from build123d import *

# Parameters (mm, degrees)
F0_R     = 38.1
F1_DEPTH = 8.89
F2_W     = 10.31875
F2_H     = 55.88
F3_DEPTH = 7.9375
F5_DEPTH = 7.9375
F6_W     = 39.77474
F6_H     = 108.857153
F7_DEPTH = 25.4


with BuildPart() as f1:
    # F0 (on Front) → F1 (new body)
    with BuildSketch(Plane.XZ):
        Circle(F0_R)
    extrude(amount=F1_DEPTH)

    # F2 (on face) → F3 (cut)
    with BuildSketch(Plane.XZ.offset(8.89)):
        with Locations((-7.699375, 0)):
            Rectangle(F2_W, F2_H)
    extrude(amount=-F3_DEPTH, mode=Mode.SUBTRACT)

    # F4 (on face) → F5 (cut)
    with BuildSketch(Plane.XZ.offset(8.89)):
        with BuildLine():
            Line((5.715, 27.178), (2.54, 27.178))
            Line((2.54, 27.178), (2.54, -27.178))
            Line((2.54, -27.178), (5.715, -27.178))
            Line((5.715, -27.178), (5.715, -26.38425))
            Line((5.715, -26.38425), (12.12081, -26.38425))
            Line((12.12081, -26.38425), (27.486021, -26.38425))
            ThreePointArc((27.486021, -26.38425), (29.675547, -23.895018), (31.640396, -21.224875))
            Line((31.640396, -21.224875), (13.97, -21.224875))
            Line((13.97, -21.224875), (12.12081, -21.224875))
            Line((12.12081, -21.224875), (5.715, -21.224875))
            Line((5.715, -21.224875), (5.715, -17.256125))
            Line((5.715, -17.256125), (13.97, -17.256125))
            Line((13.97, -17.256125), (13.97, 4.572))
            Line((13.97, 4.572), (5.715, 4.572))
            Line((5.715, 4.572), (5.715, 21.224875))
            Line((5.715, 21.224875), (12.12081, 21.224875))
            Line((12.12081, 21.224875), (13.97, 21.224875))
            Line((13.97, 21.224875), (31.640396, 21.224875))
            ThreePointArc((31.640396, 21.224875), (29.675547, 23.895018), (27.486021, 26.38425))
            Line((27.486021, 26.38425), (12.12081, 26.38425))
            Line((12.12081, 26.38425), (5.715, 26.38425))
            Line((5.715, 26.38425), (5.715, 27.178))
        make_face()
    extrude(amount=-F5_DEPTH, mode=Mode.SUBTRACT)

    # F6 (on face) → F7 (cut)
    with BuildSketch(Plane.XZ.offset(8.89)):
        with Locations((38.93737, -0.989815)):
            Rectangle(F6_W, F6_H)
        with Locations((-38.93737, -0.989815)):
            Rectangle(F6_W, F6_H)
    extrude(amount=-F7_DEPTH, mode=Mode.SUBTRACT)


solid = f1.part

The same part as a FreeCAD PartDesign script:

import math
import FreeCAD as App
import Part
import Sketcher

V = App.Vector
Q = App.Units.Quantity

doc = App.newDocument("Part")
body = doc.addObject("PartDesign::Body", "Body")

sketch1 = body.newObject("Sketcher::SketchObject", "Sketch")
sketch1.AttachmentSupport = (doc.getObject("XZ_Plane"), [""])
sketch1.MapMode = "FlatFace"
sketch1.addGeometry(Part.Circle(V(0, 0, 0), V(0, 0, 1), 38), False)
sketch1.addConstraint([
    Sketcher.Constraint("Coincident", 0, 3, -1, 1),
    Sketcher.Constraint("Diameter", 0, Q("3 in")),
])
pad1 = body.newObject("PartDesign::Pad", "Pad")
pad1.Profile = sketch1
pad1.Length = Q("0.35 in")

sketch2 = body.newObject("Sketcher::SketchObject", "Sketch001")
sketch2.AttachmentSupport = (doc.getObject("XZ_Plane"), [""])
sketch2.MapMode = "FlatFace"
sketch2.AttachmentOffset = App.Placement(V(0, 0, 0.35 * 25.4), App.Rotation())
sketch2.addGeometry([
    Part.LineSegment(V(-13, 28, 0), V(-13, -28, 0)),
    Part.LineSegment(V(-13, -28, 0), V(-3, -28, 0)),
    Part.LineSegment(V(-3, -28, 0), V(-3, 28, 0)),
    Part.LineSegment(V(-3, 28, 0), V(-13, 28, 0)),
], False)
sketch2.addConstraint([
    Sketcher.Constraint("Coincident", 0, 2, 1, 1),
    Sketcher.Constraint("Coincident", 1, 2, 2, 1),
    Sketcher.Constraint("Coincident", 2, 2, 3, 1),
    Sketcher.Constraint("Coincident", 3, 2, 0, 1),
    Sketcher.Constraint("Vertical", 0),
    Sketcher.Constraint("Horizontal", 1),
    Sketcher.Constraint("Vertical", 2),
    Sketcher.Constraint("Horizontal", 3),
    Sketcher.Constraint("DistanceY", 0, 2, 0, 1, Q("2.2 in")),
    Sketcher.Constraint("DistanceY", 0, 2, -1, 1, Q("1.1 in")),
    Sketcher.Constraint("DistanceX", 1, 2, -1, 1, Q("0.1 in")),
    Sketcher.Constraint("DistanceX", 1, 1, 1, 2, Q("0.40625 in")),
])
pocket1 = body.newObject("PartDesign::Pocket", "Pocket")
pocket1.Profile = sketch2
pocket1.Length = Q("0.3125 in")

sketch3 = body.newObject("Sketcher::SketchObject", "Sketch002")
sketch3.AttachmentSupport = (doc.getObject("XZ_Plane"), [""])
sketch3.MapMode = "FlatFace"
sketch3.AttachmentOffset = App.Placement(V(0, 0, 0.35 * 25.4), App.Rotation())
sketch3.addGeometry([
    Part.LineSegment(V(5.715, 27.178, 0), V(2.54, 27.178, 0)),
    Part.LineSegment(V(2.54, 27.178, 0), V(2.54, -27.178, 0)),
    Part.LineSegment(V(2.54, -27.178, 0), V(5.715, -27.178, 0)),
    Part.LineSegment(V(5.715, -27.178, 0), V(5.715, -26.38425, 0)),
    Part.LineSegment(V(5.715, -26.38425, 0), V(27.486021, -26.38425, 0)),
    Part.ArcOfCircle(Part.Circle(V(-0.000037, 0.000027, 0), V(0, 0, 1), 38.100045), math.radians(-43.828325), math.radians(-33.854334)),
    Part.LineSegment(V(31.640396, -21.224875, 0), V(5.715, -21.224875, 0)),
    Part.LineSegment(V(5.715, -21.224875, 0), V(5.715, -17.256125, 0)),
    Part.LineSegment(V(5.715, -17.256125, 0), V(13.97, -17.256125, 0)),
    Part.LineSegment(V(13.97, -17.256125, 0), V(13.97, 4.572, 0)),
    Part.LineSegment(V(13.97, 4.572, 0), V(5.715, 4.572, 0)),
    Part.LineSegment(V(5.715, 4.572, 0), V(5.715, 21.224875, 0)),
    Part.LineSegment(V(5.715, 21.224875, 0), V(31.640396, 21.224875, 0)),
    Part.ArcOfCircle(Part.Circle(V(-0.000037, -0.000027, 0), V(0, 0, 1), 38.100045), math.radians(33.854334), math.radians(43.828325)),
    Part.LineSegment(V(27.486021, 26.38425, 0), V(5.715, 26.38425, 0)),
    Part.LineSegment(V(5.715, 26.38425, 0), V(5.715, 27.178, 0)),
], False)
sketch3.addConstraint([
    Sketcher.Constraint("Coincident", 0, 2, 1, 1),
    Sketcher.Constraint("Coincident", 1, 2, 2, 1),
    Sketcher.Constraint("Coincident", 2, 2, 3, 1),
    Sketcher.Constraint("Coincident", 3, 2, 4, 1),
    Sketcher.Constraint("Coincident", 4, 2, 5, 1),
    Sketcher.Constraint("Coincident", 5, 2, 6, 1),
    Sketcher.Constraint("Coincident", 6, 2, 7, 1),
    Sketcher.Constraint("Coincident", 7, 2, 8, 1),
    Sketcher.Constraint("Coincident", 8, 2, 9, 1),
    Sketcher.Constraint("Coincident", 9, 2, 10, 1),
    Sketcher.Constraint("Coincident", 10, 2, 11, 1),
    Sketcher.Constraint("Coincident", 11, 2, 12, 1),
    Sketcher.Constraint("Coincident", 12, 2, 13, 1),
    Sketcher.Constraint("Coincident", 13, 2, 14, 1),
    Sketcher.Constraint("Coincident", 14, 2, 15, 1),
    Sketcher.Constraint("Coincident", 15, 2, 0, 1),
    Sketcher.Constraint("Horizontal", 0),
    Sketcher.Constraint("Vertical", 1),
    Sketcher.Constraint("Horizontal", 2),
    Sketcher.Constraint("Vertical", 3),
    Sketcher.Constraint("Horizontal", 4),
    Sketcher.Constraint("Horizontal", 6),
    Sketcher.Constraint("Vertical", 7),
    Sketcher.Constraint("Horizontal", 8),
    Sketcher.Constraint("Vertical", 9),
    Sketcher.Constraint("Horizontal", 10),
    Sketcher.Constraint("Vertical", 11),
    Sketcher.Constraint("Horizontal", 12),
    Sketcher.Constraint("Horizontal", 14),
    Sketcher.Constraint("Vertical", 15),
    Sketcher.Constraint("Equal", 5, 13),
    Sketcher.Constraint("Symmetric", 5, 3, 13, 3, -1),
    Sketcher.Constraint("Symmetric", 6, 2, 11, 2, -1),
    Sketcher.Constraint("Symmetric", 3, 2, 14, 2, -1),
    Sketcher.Constraint("Vertical", 3, 2, 6, 2),
    Sketcher.Constraint("Equal", 3, 15),
    Sketcher.Constraint("DistanceY", 1, 2, 1, 1, Q("2.14 in")),
    Sketcher.Constraint("DistanceX", -1, 1, 0, 2, Q("0.1 in")),
    Sketcher.Constraint("DistanceX", 0, 2, 0, 1, Q("0.125 in")),
    Sketcher.Constraint("DistanceX", 8, 1, 8, 2, Q("0.325 in")),
    Sketcher.Constraint("DistanceY", 3, 1, 3, 2, Q("0.03125 in")),
    Sketcher.Constraint("DistanceY", 7, 1, 7, 2, Q("0.15625 in")),
    Sketcher.Constraint("DistanceY", 9, 1, 9, 2, Q("0.859375 in")),
    Sketcher.Constraint("DistanceY", -1, 1, 9, 2, Q("0.18 in")),
    Sketcher.Constraint("Radius", 5, 38.100045),
    Sketcher.Constraint("DistanceX", 4, 1, 4, 2, 21.771021),
    Sketcher.Constraint("DistanceX", 6, 2, 6, 1, 25.925396),
])
pocket2 = body.newObject("PartDesign::Pocket", "Pocket001")
pocket2.Profile = sketch3
pocket2.Length = Q("0.3125 in")

sketch4 = body.newObject("Sketcher::SketchObject", "Sketch003")
sketch4.AttachmentSupport = (doc.getObject("XZ_Plane"), [""])
sketch4.MapMode = "FlatFace"
sketch4.AttachmentOffset = App.Placement(V(0, 0, 0.35 * 25.4), App.Rotation())
sketch4.addGeometry([
    Part.LineSegment(V(19, 53, 0), V(19, -55, 0)),
    Part.LineSegment(V(19, -55, 0), V(59, -55, 0)),
    Part.LineSegment(V(59, -55, 0), V(59, 53, 0)),
    Part.LineSegment(V(59, 53, 0), V(19, 53, 0)),
    Part.LineSegment(V(-59, 53, 0), V(-59, -55, 0)),
    Part.LineSegment(V(-59, -55, 0), V(-19, -55, 0)),
    Part.LineSegment(V(-19, -55, 0), V(-19, 53, 0)),
    Part.LineSegment(V(-19, 53, 0), V(-59, 53, 0)),
], False)
sketch4.addConstraint([
    Sketcher.Constraint("Coincident", 0, 2, 1, 1),
    Sketcher.Constraint("Coincident", 1, 2, 2, 1),
    Sketcher.Constraint("Coincident", 2, 2, 3, 1),
    Sketcher.Constraint("Coincident", 3, 2, 0, 1),
    Sketcher.Constraint("Coincident", 4, 2, 5, 1),
    Sketcher.Constraint("Coincident", 5, 2, 6, 1),
    Sketcher.Constraint("Coincident", 6, 2, 7, 1),
    Sketcher.Constraint("Coincident", 7, 2, 4, 1),
    Sketcher.Constraint("Vertical", 0),
    Sketcher.Constraint("Horizontal", 1),
    Sketcher.Constraint("Vertical", 2),
    Sketcher.Constraint("Horizontal", 3),
    Sketcher.Constraint("Vertical", 4),
    Sketcher.Constraint("Horizontal", 5),
    Sketcher.Constraint("Vertical", 6),
    Sketcher.Constraint("Horizontal", 7),
    Sketcher.Constraint("Symmetric", 1, 2, 4, 2, -2),
    Sketcher.Constraint("Symmetric", 3, 2, 6, 2, -2),
    Sketcher.Constraint("DistanceX", 5, 2, 0, 2, Q("1.5 in")),
    Sketcher.Constraint("DistanceX", 1, 1, 1, 2, 39.77474),
    Sketcher.Constraint("DistanceY", 0, 2, 0, 1, 108.857153),
    Sketcher.Constraint("DistanceY", 0, 2, -1, 1, 55.418391),
])
pocket3 = body.newObject("PartDesign::Pocket", "Pocket002")
pocket3.Profile = sketch4
pocket3.Length = Q("1 in")

doc.recompute()
